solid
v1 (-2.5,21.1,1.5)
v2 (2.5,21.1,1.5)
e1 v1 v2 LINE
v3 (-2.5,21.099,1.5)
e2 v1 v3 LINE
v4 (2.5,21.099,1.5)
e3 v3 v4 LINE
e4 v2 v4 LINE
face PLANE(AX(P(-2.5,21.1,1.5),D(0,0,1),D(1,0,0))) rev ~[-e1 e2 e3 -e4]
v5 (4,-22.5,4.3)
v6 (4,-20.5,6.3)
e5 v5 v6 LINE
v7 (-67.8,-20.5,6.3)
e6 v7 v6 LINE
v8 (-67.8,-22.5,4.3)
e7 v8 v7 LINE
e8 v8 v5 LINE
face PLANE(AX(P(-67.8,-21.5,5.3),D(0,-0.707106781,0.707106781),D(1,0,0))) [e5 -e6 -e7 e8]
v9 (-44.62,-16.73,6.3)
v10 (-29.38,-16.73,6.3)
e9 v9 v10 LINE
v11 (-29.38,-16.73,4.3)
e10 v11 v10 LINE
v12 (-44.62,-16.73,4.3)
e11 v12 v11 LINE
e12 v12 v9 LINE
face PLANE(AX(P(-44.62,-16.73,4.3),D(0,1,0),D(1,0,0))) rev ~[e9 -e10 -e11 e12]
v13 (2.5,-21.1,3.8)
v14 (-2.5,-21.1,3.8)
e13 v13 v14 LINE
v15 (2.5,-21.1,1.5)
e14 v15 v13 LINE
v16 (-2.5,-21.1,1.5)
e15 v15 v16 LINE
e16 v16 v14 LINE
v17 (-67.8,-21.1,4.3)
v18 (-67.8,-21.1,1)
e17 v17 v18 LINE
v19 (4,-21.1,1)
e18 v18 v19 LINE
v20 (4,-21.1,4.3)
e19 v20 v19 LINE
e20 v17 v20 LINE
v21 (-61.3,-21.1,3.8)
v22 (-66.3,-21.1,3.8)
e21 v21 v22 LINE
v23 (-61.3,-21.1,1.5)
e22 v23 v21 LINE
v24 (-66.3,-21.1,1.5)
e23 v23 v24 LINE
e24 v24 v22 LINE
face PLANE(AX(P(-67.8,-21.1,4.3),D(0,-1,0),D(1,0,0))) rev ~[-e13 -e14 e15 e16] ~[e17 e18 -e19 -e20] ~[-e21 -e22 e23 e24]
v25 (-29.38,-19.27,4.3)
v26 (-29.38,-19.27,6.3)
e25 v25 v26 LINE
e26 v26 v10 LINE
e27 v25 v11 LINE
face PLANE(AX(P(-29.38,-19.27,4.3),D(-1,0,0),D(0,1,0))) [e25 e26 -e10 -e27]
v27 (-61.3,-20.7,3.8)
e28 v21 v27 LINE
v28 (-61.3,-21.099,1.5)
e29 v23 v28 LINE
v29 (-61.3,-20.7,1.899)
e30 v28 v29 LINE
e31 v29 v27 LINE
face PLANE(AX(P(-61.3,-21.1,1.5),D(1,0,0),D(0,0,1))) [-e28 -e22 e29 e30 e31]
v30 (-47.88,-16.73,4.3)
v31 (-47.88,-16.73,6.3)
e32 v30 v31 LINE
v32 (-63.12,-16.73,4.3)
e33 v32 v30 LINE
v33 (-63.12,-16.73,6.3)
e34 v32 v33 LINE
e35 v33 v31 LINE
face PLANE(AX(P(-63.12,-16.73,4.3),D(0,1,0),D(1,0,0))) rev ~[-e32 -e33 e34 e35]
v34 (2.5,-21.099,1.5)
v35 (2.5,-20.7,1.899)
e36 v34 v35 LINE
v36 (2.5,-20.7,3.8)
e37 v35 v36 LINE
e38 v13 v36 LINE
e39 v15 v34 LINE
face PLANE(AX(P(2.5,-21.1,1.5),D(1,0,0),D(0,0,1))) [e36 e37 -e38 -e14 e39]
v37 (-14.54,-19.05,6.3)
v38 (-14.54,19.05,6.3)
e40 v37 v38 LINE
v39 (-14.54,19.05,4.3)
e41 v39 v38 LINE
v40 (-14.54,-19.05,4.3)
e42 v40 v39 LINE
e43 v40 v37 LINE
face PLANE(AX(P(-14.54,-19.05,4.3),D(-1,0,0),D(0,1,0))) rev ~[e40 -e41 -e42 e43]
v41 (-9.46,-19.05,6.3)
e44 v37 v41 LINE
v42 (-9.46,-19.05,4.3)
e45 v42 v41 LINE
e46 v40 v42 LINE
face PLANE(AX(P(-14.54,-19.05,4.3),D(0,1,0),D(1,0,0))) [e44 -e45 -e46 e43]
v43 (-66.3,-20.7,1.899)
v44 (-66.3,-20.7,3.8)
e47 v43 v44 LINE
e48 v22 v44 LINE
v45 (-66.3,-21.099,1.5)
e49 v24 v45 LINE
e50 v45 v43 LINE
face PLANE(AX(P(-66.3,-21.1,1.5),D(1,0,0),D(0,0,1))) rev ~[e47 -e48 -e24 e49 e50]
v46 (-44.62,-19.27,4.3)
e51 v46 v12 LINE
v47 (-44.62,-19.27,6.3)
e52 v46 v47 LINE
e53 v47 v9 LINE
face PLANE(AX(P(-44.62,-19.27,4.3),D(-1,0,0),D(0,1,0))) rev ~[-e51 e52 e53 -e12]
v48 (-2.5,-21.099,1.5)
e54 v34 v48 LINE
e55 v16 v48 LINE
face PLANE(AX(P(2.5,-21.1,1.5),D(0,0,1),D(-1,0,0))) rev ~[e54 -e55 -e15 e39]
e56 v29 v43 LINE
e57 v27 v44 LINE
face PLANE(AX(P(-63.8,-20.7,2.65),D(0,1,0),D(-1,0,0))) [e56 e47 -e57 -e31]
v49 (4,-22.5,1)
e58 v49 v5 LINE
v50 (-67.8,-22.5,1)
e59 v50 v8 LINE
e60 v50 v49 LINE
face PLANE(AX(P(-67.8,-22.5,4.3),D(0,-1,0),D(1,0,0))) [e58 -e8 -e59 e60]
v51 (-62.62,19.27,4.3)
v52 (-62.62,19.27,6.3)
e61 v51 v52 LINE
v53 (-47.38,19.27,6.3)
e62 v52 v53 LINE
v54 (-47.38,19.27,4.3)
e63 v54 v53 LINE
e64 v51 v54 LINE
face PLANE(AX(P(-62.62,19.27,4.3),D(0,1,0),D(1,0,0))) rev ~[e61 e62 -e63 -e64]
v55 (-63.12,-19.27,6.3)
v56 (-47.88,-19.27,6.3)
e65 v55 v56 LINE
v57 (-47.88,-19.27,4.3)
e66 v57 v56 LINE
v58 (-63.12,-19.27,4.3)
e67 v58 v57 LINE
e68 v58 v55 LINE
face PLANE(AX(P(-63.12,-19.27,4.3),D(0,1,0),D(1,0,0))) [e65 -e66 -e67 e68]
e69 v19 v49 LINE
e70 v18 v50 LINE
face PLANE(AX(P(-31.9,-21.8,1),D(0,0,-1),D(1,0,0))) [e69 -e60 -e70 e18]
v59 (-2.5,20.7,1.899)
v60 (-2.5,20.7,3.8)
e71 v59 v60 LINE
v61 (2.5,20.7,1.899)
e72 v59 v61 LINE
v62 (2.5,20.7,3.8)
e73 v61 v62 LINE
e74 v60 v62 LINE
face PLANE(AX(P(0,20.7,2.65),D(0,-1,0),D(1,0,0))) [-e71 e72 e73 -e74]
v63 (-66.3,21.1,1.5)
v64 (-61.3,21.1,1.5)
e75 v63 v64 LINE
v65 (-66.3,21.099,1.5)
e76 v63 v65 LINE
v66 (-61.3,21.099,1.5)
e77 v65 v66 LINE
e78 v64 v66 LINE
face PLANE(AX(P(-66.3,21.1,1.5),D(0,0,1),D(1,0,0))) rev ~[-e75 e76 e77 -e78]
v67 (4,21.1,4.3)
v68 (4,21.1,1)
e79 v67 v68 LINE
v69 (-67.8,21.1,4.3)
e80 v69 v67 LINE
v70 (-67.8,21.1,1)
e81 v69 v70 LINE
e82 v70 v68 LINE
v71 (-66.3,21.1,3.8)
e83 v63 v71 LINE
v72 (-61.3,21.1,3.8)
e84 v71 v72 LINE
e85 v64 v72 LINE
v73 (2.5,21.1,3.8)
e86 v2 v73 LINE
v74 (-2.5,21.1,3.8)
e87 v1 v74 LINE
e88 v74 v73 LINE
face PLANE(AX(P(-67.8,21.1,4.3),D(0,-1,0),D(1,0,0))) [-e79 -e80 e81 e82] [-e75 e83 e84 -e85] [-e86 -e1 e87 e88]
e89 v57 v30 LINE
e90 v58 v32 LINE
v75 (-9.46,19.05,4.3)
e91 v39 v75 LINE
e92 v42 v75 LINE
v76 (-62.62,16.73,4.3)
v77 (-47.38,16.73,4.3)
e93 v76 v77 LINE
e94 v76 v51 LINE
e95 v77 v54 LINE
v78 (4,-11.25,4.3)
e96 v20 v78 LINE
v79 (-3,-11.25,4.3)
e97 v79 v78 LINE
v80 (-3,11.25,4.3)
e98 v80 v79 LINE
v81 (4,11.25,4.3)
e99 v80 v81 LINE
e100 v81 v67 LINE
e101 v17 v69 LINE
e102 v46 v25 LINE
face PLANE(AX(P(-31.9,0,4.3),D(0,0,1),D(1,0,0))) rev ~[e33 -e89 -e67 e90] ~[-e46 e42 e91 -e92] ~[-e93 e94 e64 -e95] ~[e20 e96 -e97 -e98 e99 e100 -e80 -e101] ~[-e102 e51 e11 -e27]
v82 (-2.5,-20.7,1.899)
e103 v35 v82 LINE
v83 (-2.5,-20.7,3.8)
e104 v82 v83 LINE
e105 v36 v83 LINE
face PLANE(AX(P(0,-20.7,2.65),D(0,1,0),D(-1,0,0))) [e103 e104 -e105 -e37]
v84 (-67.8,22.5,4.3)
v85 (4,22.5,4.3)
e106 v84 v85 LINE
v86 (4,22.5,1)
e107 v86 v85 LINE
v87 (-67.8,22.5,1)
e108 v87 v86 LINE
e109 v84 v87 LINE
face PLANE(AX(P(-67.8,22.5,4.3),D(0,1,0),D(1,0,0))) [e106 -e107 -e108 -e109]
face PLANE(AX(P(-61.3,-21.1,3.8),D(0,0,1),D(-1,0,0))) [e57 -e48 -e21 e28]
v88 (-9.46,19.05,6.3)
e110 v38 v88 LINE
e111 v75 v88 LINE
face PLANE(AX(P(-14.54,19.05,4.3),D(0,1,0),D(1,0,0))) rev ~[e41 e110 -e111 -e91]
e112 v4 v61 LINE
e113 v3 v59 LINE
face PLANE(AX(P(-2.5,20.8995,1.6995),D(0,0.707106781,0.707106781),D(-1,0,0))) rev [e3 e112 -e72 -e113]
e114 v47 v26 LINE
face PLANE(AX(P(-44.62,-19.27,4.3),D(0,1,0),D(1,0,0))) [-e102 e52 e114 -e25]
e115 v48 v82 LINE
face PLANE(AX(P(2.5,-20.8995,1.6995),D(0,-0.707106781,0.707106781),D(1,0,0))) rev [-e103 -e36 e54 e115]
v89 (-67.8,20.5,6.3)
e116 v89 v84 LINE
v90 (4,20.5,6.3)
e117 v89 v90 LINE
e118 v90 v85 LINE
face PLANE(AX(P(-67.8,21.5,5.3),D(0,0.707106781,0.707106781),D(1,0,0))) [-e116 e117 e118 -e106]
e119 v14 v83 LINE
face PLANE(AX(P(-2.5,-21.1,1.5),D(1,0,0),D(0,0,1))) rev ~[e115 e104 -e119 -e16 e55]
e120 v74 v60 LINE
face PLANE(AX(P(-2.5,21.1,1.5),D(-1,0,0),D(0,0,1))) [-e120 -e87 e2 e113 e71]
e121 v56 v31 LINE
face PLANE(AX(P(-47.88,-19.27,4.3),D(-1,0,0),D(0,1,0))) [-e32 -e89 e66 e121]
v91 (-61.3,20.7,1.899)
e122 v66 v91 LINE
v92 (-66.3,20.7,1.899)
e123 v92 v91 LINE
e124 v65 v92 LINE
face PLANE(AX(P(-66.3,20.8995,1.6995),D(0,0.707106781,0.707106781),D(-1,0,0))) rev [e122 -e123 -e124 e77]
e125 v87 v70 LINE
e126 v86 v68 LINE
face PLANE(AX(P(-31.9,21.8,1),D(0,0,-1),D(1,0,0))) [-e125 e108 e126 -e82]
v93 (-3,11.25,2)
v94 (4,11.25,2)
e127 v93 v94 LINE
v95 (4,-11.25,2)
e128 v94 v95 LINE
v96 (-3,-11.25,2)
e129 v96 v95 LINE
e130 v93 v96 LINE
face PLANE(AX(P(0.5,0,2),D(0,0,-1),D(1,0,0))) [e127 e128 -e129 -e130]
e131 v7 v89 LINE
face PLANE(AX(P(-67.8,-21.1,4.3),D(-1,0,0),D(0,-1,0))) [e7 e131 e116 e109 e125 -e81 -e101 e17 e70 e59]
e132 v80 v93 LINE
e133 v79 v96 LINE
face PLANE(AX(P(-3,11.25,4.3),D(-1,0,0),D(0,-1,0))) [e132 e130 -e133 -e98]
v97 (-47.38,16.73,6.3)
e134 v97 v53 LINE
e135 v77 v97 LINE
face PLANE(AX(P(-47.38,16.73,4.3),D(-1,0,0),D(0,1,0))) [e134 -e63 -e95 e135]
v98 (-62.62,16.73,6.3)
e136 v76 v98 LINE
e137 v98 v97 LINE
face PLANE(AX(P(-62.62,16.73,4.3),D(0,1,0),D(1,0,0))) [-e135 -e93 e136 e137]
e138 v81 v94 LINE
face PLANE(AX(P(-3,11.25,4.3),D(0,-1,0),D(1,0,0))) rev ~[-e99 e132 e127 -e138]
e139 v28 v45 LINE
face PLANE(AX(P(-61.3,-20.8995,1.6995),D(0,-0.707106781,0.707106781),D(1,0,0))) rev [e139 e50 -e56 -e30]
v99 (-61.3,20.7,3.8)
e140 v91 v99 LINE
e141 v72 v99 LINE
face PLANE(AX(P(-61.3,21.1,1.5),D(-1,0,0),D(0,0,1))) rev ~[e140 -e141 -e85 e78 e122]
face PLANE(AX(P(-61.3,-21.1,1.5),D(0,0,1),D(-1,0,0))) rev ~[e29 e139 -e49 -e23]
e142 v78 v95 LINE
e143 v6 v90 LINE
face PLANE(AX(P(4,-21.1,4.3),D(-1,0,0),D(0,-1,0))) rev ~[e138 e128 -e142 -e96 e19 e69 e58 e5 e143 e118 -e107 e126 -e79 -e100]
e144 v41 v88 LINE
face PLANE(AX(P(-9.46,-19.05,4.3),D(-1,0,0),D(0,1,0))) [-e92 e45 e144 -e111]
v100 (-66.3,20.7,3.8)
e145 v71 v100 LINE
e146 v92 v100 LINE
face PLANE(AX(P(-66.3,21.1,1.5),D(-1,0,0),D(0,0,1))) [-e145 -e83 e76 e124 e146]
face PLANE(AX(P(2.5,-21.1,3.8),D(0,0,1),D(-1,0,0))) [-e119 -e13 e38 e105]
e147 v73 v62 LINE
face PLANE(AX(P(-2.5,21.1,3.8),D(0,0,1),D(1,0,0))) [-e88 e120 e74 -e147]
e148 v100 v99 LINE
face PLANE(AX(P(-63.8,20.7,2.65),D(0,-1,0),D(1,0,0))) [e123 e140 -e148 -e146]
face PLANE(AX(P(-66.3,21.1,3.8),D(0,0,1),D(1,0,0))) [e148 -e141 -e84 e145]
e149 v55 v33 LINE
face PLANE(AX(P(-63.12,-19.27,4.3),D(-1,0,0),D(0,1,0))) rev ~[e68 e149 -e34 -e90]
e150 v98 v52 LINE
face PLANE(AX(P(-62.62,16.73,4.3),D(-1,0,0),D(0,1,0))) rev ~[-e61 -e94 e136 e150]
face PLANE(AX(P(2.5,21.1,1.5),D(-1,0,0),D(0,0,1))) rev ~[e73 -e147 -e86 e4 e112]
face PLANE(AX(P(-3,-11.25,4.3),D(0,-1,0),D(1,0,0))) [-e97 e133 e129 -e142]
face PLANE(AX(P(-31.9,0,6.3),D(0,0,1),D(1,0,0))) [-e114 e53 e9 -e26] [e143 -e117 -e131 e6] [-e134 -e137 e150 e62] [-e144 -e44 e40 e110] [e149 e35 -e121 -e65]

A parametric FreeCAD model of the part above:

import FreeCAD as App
import Part
import Sketcher

V = App.Vector


def edges_at(feature, points):
    """Names of the edges that pass closest to the given points."""
    edges = feature.Shape.Edges
    near = lambda p: min(range(len(edges)), key=lambda i: edges[i].distToShape(Part.Vertex(*p))[0])
    return sorted({f"Edge{near(p) + 1}" for p in points})

doc = App.newDocument("Part")
body = doc.addObject("PartDesign::Body", "Body")

# Sketch on XY plane
sketch1 = body.newObject("Sketcher::SketchObject", "Sketch")
sketch1.AttachmentSupport = (doc.getObject("XY_Plane"), [""])
sketch1.MapMode = "FlatFace"
sketch1.AttachmentOffset = App.Placement(V(0, 0, 4.3), App.Rotation())
sketch1.addGeometry([
    Part.LineSegment(V(-67.8, 22.5, 0), V(-67.8, -22.5, 0)),  # 0
    Part.LineSegment(V(-67.8, -22.5, 0), V(4, -22.5, 0)),  # 1
    Part.LineSegment(V(4, -22.5, 0), V(4, 22.5, 0)),  # 2
    Part.LineSegment(V(4, 22.5, 0), V(-67.8, 22.5, 0)),  # 3
    Part.LineSegment(V(-47.9, -19.3, 0), V(-63.1, -19.3, 0)),  # 4
    Part.LineSegment(V(-63.1, -19.3, 0), V(-63.1, -16.7, 0)),  # 5
    Part.LineSegment(V(-63.1, -16.7, 0), V(-47.9, -16.7, 0)),  # 6
    Part.LineSegment(V(-47.9, -16.7, 0), V(-47.9, -19.3, 0)),  # 7
    Part.LineSegment(V(-29.4, -19.3, 0), V(-44.6, -19.3, 0)),  # 8
    Part.LineSegment(V(-44.6, -19.3, 0), V(-44.6, -16.7, 0)),  # 9
    Part.LineSegment(V(-44.6, -16.7, 0), V(-29.4, -16.7, 0)),  # 10
    Part.LineSegment(V(-29.4, -16.7, 0), V(-29.4, -19.3, 0)),  # 11
    Part.LineSegment(V(-47.4, 16.7, 0), V(-62.6, 16.7, 0)),  # 12
    Part.LineSegment(V(-62.6, 16.7, 0), V(-62.6, 19.3, 0)),  # 13
    Part.LineSegment(V(-62.6, 19.3, 0), V(-47.4, 19.3, 0)),  # 14
    Part.LineSegment(V(-47.4, 19.3, 0), V(-47.4, 16.7, 0)),  # 15
    Part.LineSegment(V(-9.5, -19.1, 0), V(-14.5, -19.1, 0)),  # 16
    Part.LineSegment(V(-14.5, -19.1, 0), V(-14.5, 19.1, 0)),  # 17
    Part.LineSegment(V(-14.5, 19.1, 0), V(-9.5, 19.1, 0)),  # 18
    Part.LineSegment(V(-9.5, 19.1, 0), V(-9.5, -19.1, 0)),  # 19
], False)
sketch1.addConstraint([
    Sketcher.Constraint("Coincident", 0, 2, 1, 1),
    Sketcher.Constraint("Coincident", 1, 2, 2, 1),
    Sketcher.Constraint("Coincident", 2, 2, 3, 1),
    Sketcher.Constraint("Coincident", 3, 2, 0, 1),
    Sketcher.Constraint("Coincident", 4, 2, 5, 1),
    Sketcher.Constraint("Coincident", 5, 2, 6, 1),
    Sketcher.Constraint("Coincident", 6, 2, 7, 1),
    Sketcher.Constraint("Coincident", 7, 2, 4, 1),
    Sketcher.Constraint("Coincident", 8, 2, 9, 1),
    Sketcher.Constraint("Coincident", 9, 2, 10, 1),
    Sketcher.Constraint("Coincident", 10, 2, 11, 1),
    Sketcher.Constraint("Coincident", 11, 2, 8, 1),
    Sketcher.Constraint("Coincident", 12, 2, 13, 1),
    Sketcher.Constraint("Coincident", 13, 2, 14, 1),
    Sketcher.Constraint("Coincident", 14, 2, 15, 1),
    Sketcher.Constraint("Coincident", 15, 2, 12, 1),
    Sketcher.Constraint("Coincident", 16, 2, 17, 1),
    Sketcher.Constraint("Coincident", 17, 2, 18, 1),
    Sketcher.Constraint("Coincident", 18, 2, 19, 1),
    Sketcher.Constraint("Coincident", 19, 2, 16, 1),
    Sketcher.Constraint("Vertical", 0),
    Sketcher.Constraint("Horizontal", 1),
    Sketcher.Constraint("Vertical", 2),
    Sketcher.Constraint("Horizontal", 3),
    Sketcher.Constraint("Horizontal", 4),
    Sketcher.Constraint("Vertical", 5),
    Sketcher.Constraint("Horizontal", 6),
    Sketcher.Constraint("Vertical", 7),
    Sketcher.Constraint("Horizontal", 8),
    Sketcher.Constraint("Vertical", 9),
    Sketcher.Constraint("Horizontal", 10),
    Sketcher.Constraint("Vertical", 11),
    Sketcher.Constraint("Horizontal", 12),
    Sketcher.Constraint("Vertical", 13),
    Sketcher.Constraint("Horizontal", 14),
    Sketcher.Constraint("Vertical", 15),
    Sketcher.Constraint("Horizontal", 16),
    Sketcher.Constraint("Vertical", 17),
    Sketcher.Constraint("Horizontal", 18),
    Sketcher.Constraint("Vertical", 19),
    Sketcher.Constraint("Horizontal", 7, 2, 8, 2),
    Sketcher.Constraint("Horizontal", 6, 2, 9, 2),
    Sketcher.Constraint("Equal", 6, 8),
    Sketcher.Constraint("Equal", 10, 12),
    Sketcher.Constraint("Equal", 11, 13),
    Sketcher.Constraint("DistanceY", 0, 2, 0, 1, 45.0),
    Sketcher.Constraint("DistanceX", 1, 1, 1, 2, 71.8),
    Sketcher.Constraint("DistanceY", 17, 1, 17, 2, 38.1),
    Sketcher.Constraint("DistanceX", -1, 1, 1, 2, 4.0),
    Sketcher.Constraint("DistanceY", 4, 2, 12, 2, 36.0),
    Sketcher.Constraint("DistanceX", 12, 2, 9, 2, 18.0),
    Sketcher.Constraint("DistanceX", 4, 2, 4, 1, 15.24),
    Sketcher.Constraint("DistanceX", 16, 2, 16, 1, 5.08),
    Sketcher.Constraint("DistanceY", 5, 1, 5, 2, 2.54),
    Sketcher.Constraint("DistanceY", 0, 2, -1, 1, 22.5),
    Sketcher.Constraint("DistanceX", 4, 2, 8, 2, 18.5),
    Sketcher.Constraint("DistanceX", 4, 2, -1, 1, 63.12),
    Sketcher.Constraint("DistanceY", 4, 2, -1, 1, 19.27),
    Sketcher.Constraint("DistanceX", 16, 2, -1, 1, 14.54),
    Sketcher.Constraint("DistanceY", 16, 2, -1, 1, 19.05),
])
pad1 = body.newObject("PartDesign::Pad", "Pad")
pad1.Profile = sketch1
pad1.Length = 2

# Sketch on XY plane
sketch2 = body.newObject("Sketcher::SketchObject", "Sketch001")
sketch2.AttachmentSupport = (doc.getObject("XY_Plane"), [""])
sketch2.MapMode = "FlatFace"
sketch2.AttachmentOffset = App.Placement(V(0, 0, 4.3), App.Rotation())
sketch2.addGeometry([
    Part.LineSegment(V(-67.8, -22.5, 0), V(-67.8, -21.1, 0)),  # 0
    Part.LineSegment(V(-67.8, -21.1, 0), V(4, -21.1, 0)),  # 1
    Part.LineSegment(V(4, -21.1, 0), V(4, -22.5, 0)),  # 2
    Part.LineSegment(V(4, -22.5, 0), V(-67.8, -22.5, 0)),  # 3
    Part.LineSegment(V(-67.8, 21.1, 0), V(-67.8, 22.5, 0)),  # 4
    Part.LineSegment(V(-67.8, 22.5, 0), V(4, 22.5, 0)),  # 5
    Part.LineSegment(V(4, 22.5, 0), V(4, 21.1, 0)),  # 6
    Part.LineSegment(V(4, 21.1, 0), V(-67.8, 21.1, 0)),  # 7
], False)
sketch2.addConstraint([
    Sketcher.Constraint("Coincident", 0, 2, 1, 1),
    Sketcher.Constraint("Coincident", 1, 2, 2, 1),
    Sketcher.Constraint("Coincident", 2, 2, 3, 1),
    Sketcher.Constraint("Coincident", 3, 2, 0, 1),
    Sketcher.Constraint("Coincident", 4, 2, 5, 1),
    Sketcher.Constraint("Coincident", 5, 2, 6, 1),
    Sketcher.Constraint("Coincident", 6, 2, 7, 1),
    Sketcher.Constraint("Coincident", 7, 2, 4, 1),
    Sketcher.Constraint("Vertical", 0),
    Sketcher.Constraint("Horizontal", 1),
    Sketcher.Constraint("Vertical", 2),
    Sketcher.Constraint("Horizontal", 3),
    Sketcher.Constraint("Vertical", 4),
    Sketcher.Constraint("Horizontal", 5),
    Sketcher.Constraint("Vertical", 6),
    Sketcher.Constraint("Horizontal", 7),
    Sketcher.Constraint("Symmetric", 3, 2, 4, 2, -1),
    Sketcher.Constraint("Symmetric", 1, 2, 6, 2, -1),
    Sketcher.Constraint("DistanceX", 1, 1, 1, 2, 71.8),
    Sketcher.Constraint("DistanceY", 0, 1, 0, 2, 1.4),
    Sketcher.Constraint("DistanceX", -1, 1, 1, 2, 4.0),
    Sketcher.Constraint("DistanceY", 3, 2, 4, 2, 45.0),
])
pad2 = body.newObject("PartDesign::Pad", "Pad001")
pad2.Profile = sketch2
pad2.Length = 3.3
pad2.Reversed = True

# Sketch on XY plane
sketch3 = body.newObject("Sketcher::SketchObject", "Sketch002")
sketch3.AttachmentSupport = (doc.getObject("XY_Plane"), [""])
sketch3.MapMode = "FlatFace"
sketch3.AttachmentOffset = App.Placement(V(0, 0, 4.3), App.Rotation())
sketch3.addGeometry([
    Part.LineSegment(V(-3, -11, 0), V(-3, 11, 0)),
    Part.LineSegment(V(-3, 11, 0), V(4, 11, 0)),
    Part.LineSegment(V(4, 11, 0), V(4, -11, 0)),
    Part.LineSegment(V(4, -11, 0), V(-3, -11, 0)),
], False)
sketch3.addConstraint([
    Sketcher.Constraint("Coincident", 0, 2, 1, 1),
    Sketcher.Constraint("Coincident", 1, 2, 2, 1),
    Sketcher.Constraint("Coincident", 2, 2, 3, 1),
    Sketcher.Constraint("Coincident", 3, 2, 0, 1),
    Sketcher.Constraint("Vertical", 0),
    Sketcher.Constraint("Horizontal", 1),
    Sketcher.Constraint("Vertical", 2),
    Sketcher.Constraint("Horizontal", 3),
    Sketcher.Constraint("DistanceX", 1, 1, 1, 2, 7.0),
    Sketcher.Constraint("DistanceY", 0, 1, 0, 2, 22.5),
    Sketcher.Constraint("DistanceX", 0, 2, -1, 1, 3.0),
    Sketcher.Constraint("DistanceY", -1, 1, 0, 2, 11.25),
])
pad3 = body.newObject("PartDesign::Pad", "Pad002")
pad3.Profile = sketch3
pad3.Length = 2.3
pad3.Reversed = True

# Sketch on XZ plane
sketch4 = body.newObject("Sketcher::SketchObject", "Sketch003")
sketch4.AttachmentSupport = (doc.getObject("XZ_Plane"), [""])
sketch4.MapMode = "FlatFace"
sketch4.AttachmentOffset = App.Placement(V(0, 0, -21.1), App.Rotation())
sketch4.addGeometry([
    Part.LineSegment(V(-2.5, 3.8, 0), V(-2.5, 1.5, 0)),  # 0
    Part.LineSegment(V(-2.5, 1.5, 0), V(2.5, 1.5, 0)),  # 1
    Part.LineSegment(V(2.5, 1.5, 0), V(2.5, 3.8, 0)),  # 2
    Part.LineSegment(V(2.5, 3.8, 0), V(-2.5, 3.8, 0)),  # 3
    Part.LineSegment(V(-66.3, 3.8, 0), V(-66.3, 1.5, 0)),  # 4
    Part.LineSegment(V(-66.3, 1.5, 0), V(-61.3, 1.5, 0)),  # 5
    Part.LineSegment(V(-61.3, 1.5, 0), V(-61.3, 3.8, 0)),  # 6
    Part.LineSegment(V(-61.3, 3.8, 0), V(-66.3, 3.8, 0)),  # 7
], False)
sketch4.addConstraint([
    Sketcher.Constraint("Coincident", 0, 2, 1, 1),
    Sketcher.Constraint("Coincident", 1, 2, 2, 1),
    Sketcher.Constraint("Coincident", 2, 2, 3, 1),
    Sketcher.Constraint("Coincident", 3, 2, 0, 1),
    Sketcher.Constraint("Coincident", 4, 2, 5, 1),
    Sketcher.Constraint("Coincident", 5, 2, 6, 1),
    Sketcher.Constraint("Coincident", 6, 2, 7, 1),
    Sketcher.Constraint("Coincident", 7, 2, 4, 1),
    Sketcher.Constraint("Vertical", 0),
    Sketcher.Constraint("Horizontal", 1),
    Sketcher.Constraint("Vertical", 2),
    Sketcher.Constraint("Horizontal", 3),
    Sketcher.Constraint("Vertical", 4),
    Sketcher.Constraint("Horizontal", 5),
    Sketcher.Constraint("Vertical", 6),
    Sketcher.Constraint("Horizontal", 7),
    Sketcher.Constraint("Horizontal", 1, 2, 4, 2),
    Sketcher.Constraint("Horizontal", 3, 2, 6, 2),
    Sketcher.Constraint("Equal", 3, 5),
    Sketcher.Constraint("DistanceX", 1, 1, 1, 2, 5.0),
    Sketcher.Constraint("DistanceY", 0, 2, 0, 1, 2.3),
    Sketcher.Constraint("DistanceX", 0, 2, -1, 1, 2.5),
    Sketcher.Constraint("DistanceY", -1, 1, 0, 2, 1.5),
    Sketcher.Constraint("DistanceX", 4, 2, -1, 1, 66.3),
])
pad4 = body.newObject("PartDesign::Pad", "Pad003")
pad4.Profile = sketch4
pad4.Length = 0.4

# Sketch on XZ plane
sketch5 = body.newObject("Sketcher::SketchObject", "Sketch004")
sketch5.AttachmentSupport = (doc.getObject("XZ_Plane"), [""])
sketch5.MapMode = "FlatFace"
sketch5.AttachmentOffset = App.Placement(V(0, 0, 21.1), App.Rotation())
sketch5.addGeometry([
    Part.LineSegment(V(2.5, 3.8, 0), V(2.5, 1.5, 0)),  # 0
    Part.LineSegment(V(2.5, 1.5, 0), V(-2.5, 1.5, 0)),  # 1
    Part.LineSegment(V(-2.5, 1.5, 0), V(-2.5, 3.8, 0)),  # 2
    Part.LineSegment(V(-2.5, 3.8, 0), V(2.5, 3.8, 0)),  # 3
    Part.LineSegment(V(-61.3, 3.8, 0), V(-61.3, 1.5, 0)),  # 4
    Part.LineSegment(V(-61.3, 1.5, 0), V(-66.3, 1.5, 0)),  # 5
    Part.LineSegment(V(-66.3, 1.5, 0), V(-66.3, 3.8, 0)),  # 6
    Part.LineSegment(V(-66.3, 3.8, 0), V(-61.3, 3.8, 0)),  # 7
], False)
sketch5.addConstraint([
    Sketcher.Constraint("Coincident", 0, 2, 1, 1),
    Sketcher.Constraint("Coincident", 1, 2, 2, 1),
    Sketcher.Constraint("Coincident", 2, 2, 3, 1),
    Sketcher.Constraint("Coincident", 3, 2, 0, 1),
    Sketcher.Constraint("Coincident", 4, 2, 5, 1),
    Sketcher.Constraint("Coincident", 5, 2, 6, 1),
    Sketcher.Constraint("Coincident", 6, 2, 7, 1),
    Sketcher.Constraint("Coincident", 7, 2, 4, 1),
    Sketcher.Constraint("Vertical", 0),
    Sketcher.Constraint("Horizontal", 1),
    Sketcher.Constraint("Vertical", 2),
    Sketcher.Constraint("Horizontal", 3),
    Sketcher.Constraint("Vertical", 4),
    Sketcher.Constraint("Horizontal", 5),
    Sketcher.Constraint("Vertical", 6),
    Sketcher.Constraint("Horizontal", 7),
    Sketcher.Constraint("Horizontal", 1, 2, 4, 2),
    Sketcher.Constraint("Horizontal", 3, 2, 6, 2),
    Sketcher.Constraint("Equal", 3, 5),
    Sketcher.Constraint("DistanceX", 1, 2, 1, 1, 5.0),
    Sketcher.Constraint("DistanceY", 0, 2, 0, 1, 2.3),
    Sketcher.Constraint("DistanceX", -1, 1, 0, 2, 2.5),
    Sketcher.Constraint("DistanceY", -1, 1, 0, 2, 1.5),
    Sketcher.Constraint("DistanceX", 4, 2, -1, 1, 61.3),
])
pad5 = body.newObject("PartDesign::Pad", "Pad004")
pad5.Profile = sketch5
pad5.Length = 0.4
pad5.Reversed = True
doc.recompute()

chamfer = body.newObject("PartDesign::Chamfer", "Chamfer")
chamfer.Base = (pad5, edges_at(pad5, [
    (-63.8, -20.7, 1.5),
    (0, -20.7, 1.5),
    (-63.8, 20.7, 1.5),
    (0, 20.7, 1.5),
]))
chamfer.Size = 0.399
doc.recompute()

chamfer2 = body.newObject("PartDesign::Chamfer", "Chamfer001")
chamfer2.Base = (chamfer, edges_at(chamfer, [(-31.9, 22.5, 6.3), (-31.9, -22.5, 6.3)]))
chamfer2.Size = 2

doc.recompute()
